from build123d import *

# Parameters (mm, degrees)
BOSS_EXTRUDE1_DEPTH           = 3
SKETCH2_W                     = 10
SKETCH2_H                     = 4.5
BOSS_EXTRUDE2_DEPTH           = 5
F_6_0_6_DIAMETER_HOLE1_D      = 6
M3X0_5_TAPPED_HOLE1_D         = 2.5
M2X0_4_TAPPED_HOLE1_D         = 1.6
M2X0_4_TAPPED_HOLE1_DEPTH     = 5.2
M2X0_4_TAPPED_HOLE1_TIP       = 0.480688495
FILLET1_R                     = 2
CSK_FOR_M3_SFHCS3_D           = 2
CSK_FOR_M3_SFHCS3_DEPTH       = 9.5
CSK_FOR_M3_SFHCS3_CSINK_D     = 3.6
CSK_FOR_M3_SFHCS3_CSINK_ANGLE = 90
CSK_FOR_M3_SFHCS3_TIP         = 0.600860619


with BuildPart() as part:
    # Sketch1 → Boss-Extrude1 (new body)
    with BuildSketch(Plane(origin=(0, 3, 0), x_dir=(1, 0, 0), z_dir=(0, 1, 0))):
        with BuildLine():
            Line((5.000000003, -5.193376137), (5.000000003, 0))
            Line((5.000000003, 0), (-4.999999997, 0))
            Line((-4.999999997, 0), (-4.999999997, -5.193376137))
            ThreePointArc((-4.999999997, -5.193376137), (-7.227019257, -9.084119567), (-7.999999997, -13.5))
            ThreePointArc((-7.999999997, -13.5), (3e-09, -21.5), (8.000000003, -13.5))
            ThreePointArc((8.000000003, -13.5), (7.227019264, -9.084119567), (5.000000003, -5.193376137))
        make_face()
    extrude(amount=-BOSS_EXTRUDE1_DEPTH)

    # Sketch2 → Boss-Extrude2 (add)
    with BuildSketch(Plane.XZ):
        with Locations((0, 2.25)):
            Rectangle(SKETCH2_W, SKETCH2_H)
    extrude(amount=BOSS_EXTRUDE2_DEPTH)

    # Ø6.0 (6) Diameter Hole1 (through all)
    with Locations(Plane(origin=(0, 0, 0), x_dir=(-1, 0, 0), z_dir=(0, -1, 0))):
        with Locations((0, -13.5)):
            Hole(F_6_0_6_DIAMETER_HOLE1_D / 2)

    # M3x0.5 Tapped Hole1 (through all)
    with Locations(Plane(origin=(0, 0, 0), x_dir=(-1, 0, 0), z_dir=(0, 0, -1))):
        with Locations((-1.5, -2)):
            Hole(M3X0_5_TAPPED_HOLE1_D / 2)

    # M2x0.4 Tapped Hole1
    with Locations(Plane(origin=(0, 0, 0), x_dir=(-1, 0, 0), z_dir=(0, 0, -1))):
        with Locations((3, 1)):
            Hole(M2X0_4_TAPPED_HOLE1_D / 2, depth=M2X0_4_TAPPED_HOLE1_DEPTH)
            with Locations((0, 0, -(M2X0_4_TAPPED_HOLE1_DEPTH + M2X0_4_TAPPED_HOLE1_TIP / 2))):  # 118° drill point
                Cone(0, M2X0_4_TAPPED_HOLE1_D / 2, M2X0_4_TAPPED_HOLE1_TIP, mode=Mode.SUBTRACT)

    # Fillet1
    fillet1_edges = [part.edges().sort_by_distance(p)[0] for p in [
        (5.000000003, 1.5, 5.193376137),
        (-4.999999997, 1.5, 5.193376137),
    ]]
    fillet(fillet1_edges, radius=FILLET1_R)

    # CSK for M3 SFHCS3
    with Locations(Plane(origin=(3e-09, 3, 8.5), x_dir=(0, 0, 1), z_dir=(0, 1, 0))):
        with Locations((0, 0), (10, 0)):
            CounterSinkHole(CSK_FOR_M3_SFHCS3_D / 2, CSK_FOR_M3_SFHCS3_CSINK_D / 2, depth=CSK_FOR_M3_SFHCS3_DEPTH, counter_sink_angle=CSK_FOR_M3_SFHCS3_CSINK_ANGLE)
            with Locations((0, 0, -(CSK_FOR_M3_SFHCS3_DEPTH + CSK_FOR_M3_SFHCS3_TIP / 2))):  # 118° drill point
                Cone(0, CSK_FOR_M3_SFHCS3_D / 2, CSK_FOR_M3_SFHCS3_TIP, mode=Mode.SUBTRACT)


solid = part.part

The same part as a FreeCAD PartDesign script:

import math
import FreeCAD as App
import Part
import Sketcher
from FreeCAD import Vector


def edges_at(feature, points):
    """Names of the edges that pass closest to the given points."""
    edges = feature.Shape.Edges
    near = lambda p: min(range(len(edges)), key=lambda i: edges[i].distToShape(Part.Vertex(*p))[0])
    return sorted({f"Edge{near(p) + 1}" for p in points})

doc = App.newDocument("Part")
params = doc.addObject("Spreadsheet::Sheet", "Params")
for row, (alias, value) in enumerate([
    ("sketch1_radius", "13 mm"),
    ("sketch1_radius2", "8 mm"),
    ("pad1_length", "3 mm"),
    ("sketch2_width", "10 mm"),
    ("sketch2_height", "4.5 mm"),
    ("pad2_length", "5 mm"),
    ("sketch3_diameter", "6 mm"),
    ("hole_diameter", "6 mm"),
    ("sketch4_diameter", "2.5 mm"),
    ("hole2_diameter", "2.5 mm"),
    ("sketch5_diameter", "1.6 mm"),
    ("hole3_diameter", "1.6 mm"),
    ("hole3_depth", "5.2 mm"),
    ("fillet_radius", "2 mm"),
    ("sketch6_diameter", "2 mm"),
    ("hole4_diameter", "2 mm"),
    ("hole4_depth", "9.5 mm"),
    ("hole4_csink_diameter", "3.6 mm"),
], start=1):
    params.set(f"A{row}", alias)
    params.set(f"B{row}", "=" + value)
    params.setAlias(f"B{row}", alias)

body = doc.addObject("PartDesign::Body", "Body")

# Sketch on XZ plane
sketch1 = doc.addObject("Sketcher::SketchObject", "Sketch")
body.addObject(sketch1)
sketch1.AttachmentSupport = (doc.XZ_Plane, [""])
sketch1.MapMode = "FlatFace"
sketch1.AttachmentOffset = App.Placement(Vector(0, 0, -3), App.Rotation())
sketch1.addGeometry([
    Part.LineSegment(Vector(5, 5, 0), Vector(5, 0, 0)),  # 0
    Part.LineSegment(Vector(5, 0, 0), Vector(-5, 0, 0)),  # 1
    Part.LineSegment(Vector(-5, 0, 0), Vector(-5, 5, 0)),  # 2
    Part.ArcOfCircle(Part.Circle(Vector(5, 14, 0), Vector(0, 0, 1), 13), math.radians(-180), math.radians(-140)),  # 3
    Part.ArcOfCircle(Part.Circle(Vector(0, 14, 0), Vector(0, 0, 1), 8), math.radians(0), math.radians(180)),  # 4
    Part.ArcOfCircle(Part.Circle(Vector(-5, 13, 0), Vector(0, 0, 1), 13), math.radians(-40), math.radians(0)),  # 5
], False)
sketch1.addConstraint([
    Sketcher.Constraint("Coincident", 0, 2, 1, 1),
    Sketcher.Constraint("Coincident", 1, 2, 2, 1),
    Sketcher.Constraint("Coincident", 2, 2, 3, 2),
    Sketcher.Constraint("Tangent", 3, 1, 4, 2),
    Sketcher.Constraint("Tangent", 4, 1, 5, 2),
    Sketcher.Constraint("Coincident", 5, 1, 0, 1),
    Sketcher.Constraint("Vertical", 0),
    Sketcher.Constraint("Horizontal", 1),
    Sketcher.Constraint("Vertical", 2),
    Sketcher.Constraint("Equal", 3, 5),
    Sketcher.Constraint("Symmetric", 0, 2, 1, 2, -1, 1),
    Sketcher.Constraint("Symmetric", 3, 3, 5, 3, -2),
    Sketcher.Constraint("Horizontal", 3, 3, 4, 3),
    Sketcher.Constraint("Vertical", 3, 3, 0, 2),
    Sketcher.Constraint("Radius", 3, 13.0),
    Sketcher.Constraint("Radius", 4, 8.0),
    Sketcher.Constraint("DistanceY", -1, 1, 3, 3, 13.5),
])
sketch1.setExpression("Constraints[14]", "Params.sketch1_radius")
sketch1.setExpression("Constraints[15]", "Params.sketch1_radius2")
pad1 = doc.addObject("PartDesign::Pad", "Pad")
body.addObject(pad1)
pad1.Profile = sketch1
pad1.setExpression("Length", "Params.pad1_length")

# Sketch on XZ plane
sketch2 = doc.addObject("Sketcher::SketchObject", "Sketch001")
body.addObject(sketch2)
sketch2.AttachmentSupport = (doc.XZ_Plane, [""])
sketch2.MapMode = "FlatFace"
sketch2.addGeometry([
    Part.LineSegment(Vector(-5, 4.5, 0), Vector(-5, 0, 0)),
    Part.LineSegment(Vector(-5, 0, 0), Vector(5, 0, 0)),
    Part.LineSegment(Vector(5, 0, 0), Vector(5, 4.5, 0)),
    Part.LineSegment(Vector(5, 4.5, 0), Vector(-5, 4.5, 0)),
], False)
sketch2.addConstraint([
    Sketcher.Constraint("Coincident", 0, 2, 1, 1),
    Sketcher.Constraint("Coincident", 1, 2, 2, 1),
    Sketcher.Constraint("Coincident", 2, 2, 3, 1),
    Sketcher.Constraint("Coincident", 3, 2, 0, 1),
    Sketcher.Constraint("Vertical", 0),
    Sketcher.Constraint("Horizontal", 1),
    Sketcher.Constraint("Vertical", 2),
    Sketcher.Constraint("Horizontal", 3),
    Sketcher.Constraint("Symmetric", 0, 2, 1, 2, -1, 1),
    Sketcher.Constraint("DistanceX", 1, 1, 1, 2, 10.0),
    Sketcher.Constraint("DistanceY", 0, 2, 0, 1, 4.5),
])
sketch2.setExpression("Constraints[9]", "Params.sketch2_width")
sketch2.setExpression("Constraints[10]", "Params.sketch2_height")
pad2 = doc.addObject("PartDesign::Pad", "Pad001")
body.addObject(pad2)
pad2.Profile = sketch2
pad2.setExpression("Length", "Params.pad2_length")

# Sketch on XZ plane
sketch3 = doc.addObject("Sketcher::SketchObject", "Sketch002")
body.addObject(sketch3)
sketch3.AttachmentSupport = (doc.XZ_Plane, [""])
sketch3.MapMode = "FlatFace"
sketch3.addGeometry(Part.Circle(Vector(0, 13.5, 0), Vector(0, 0, 1), 3), False)
sketch3.addConstraint([
    Sketcher.Constraint("PointOnObject", 0, 3, -2),
    Sketcher.Constraint("Diameter", 0, 6.0),
    Sketcher.Constraint("DistanceY", -1, 1, 0, 3, 13.5),
])
sketch3.setExpression("Constraints[1]", "Params.sketch3_diameter")
doc.recompute()
hole = doc.addObject("PartDesign::Hole", "Hole")
body.addObject(hole)
hole.Profile = sketch3
hole.ThreadType = "None"
hole.setExpression("Diameter", "Params.hole_diameter")
hole.DepthType = "ThroughAll"

# Sketch on XY plane
sketch4 = doc.addObject("Sketcher::SketchObject", "Sketch003")
body.addObject(sketch4)
sketch4.AttachmentSupport = (doc.XY_Plane, [""])
sketch4.MapMode = "FlatFace"
sketch4.addGeometry(Part.Circle(Vector(1.5, -2, 0), Vector(0, 0, 1), 1.2), False)
sketch4.addConstraint([
    Sketcher.Constraint("Diameter", 0, 2.5),
    Sketcher.Constraint("DistanceY", 0, 3, -1, 1, 2.0),
    Sketcher.Constraint("DistanceX", -1, 1, 0, 3, 1.5),
])
sketch4.setExpression("Constraints[0]", "Params.sketch4_diameter")
doc.recompute()
hole2 = doc.addObject("PartDesign::Hole", "Hole001")
body.addObject(hole2)
hole2.Profile = sketch4
hole2.ThreadType = "None"
hole2.setExpression("Diameter", "Params.hole2_diameter")
hole2.DepthType = "ThroughAll"
hole2.Reversed = True

# Sketch on XY plane
sketch5 = doc.addObject("Sketcher::SketchObject", "Sketch004")
body.addObject(sketch5)
sketch5.AttachmentSupport = (doc.XY_Plane, [""])
sketch5.MapMode = "FlatFace"
sketch5.addGeometry(Part.Circle(Vector(-3, 1, 0), Vector(0, 0, 1), 0.8), False)
sketch5.addConstraint([
    Sketcher.Constraint("Diameter", 0, 1.6),
    Sketcher.Constraint("DistanceX", 0, 3, -1, 1, 3.0),
    Sketcher.Constraint("DistanceY", -1, 1, 0, 3, 1.0),
])
sketch5.setExpression("Constraints[0]", "Params.sketch5_diameter")
doc.recompute()
hole3 = doc.addObject("PartDesign::Hole", "Hole002")
body.addObject(hole3)
hole3.Profile = sketch5
hole3.ThreadType = "None"
hole3.setExpression("Diameter", "Params.hole3_diameter")
hole3.DepthType = "Dimension"
hole3.setExpression("Depth", "Params.hole3_depth")
hole3.DrillPoint = "Angled"
hole3.DrillPointAngle = 118
hole3.Reversed = True
doc.recompute()

fillet = doc.addObject("PartDesign::Fillet", "Fillet")
body.addObject(fillet)
fillet.Base = (hole3, edges_at(hole3, [(5, 1.5, 5.193), (-5, 1.5, 5.193)]))
fillet.setExpression("Radius", "Params.fillet_radius")

# Sketch on XZ plane
sketch6 = doc.addObject("Sketcher::SketchObject", "Sketch005")
body.addObject(sketch6)
sketch6.AttachmentSupport = (doc.XZ_Plane, [""])
sketch6.MapMode = "FlatFace"
sketch6.AttachmentOffset = App.Placement(Vector(0, 0, -3), App.Rotation())
sketch6.addGeometry([
    Part.Circle(Vector(0, 8.5, 0), Vector(0, 0, 1), 1),
    Part.Circle(Vector(0, 18.5, 0), Vector(0, 0, 1), 1),
], False)
sketch6.addConstraint([
    Sketcher.Constraint("Equal", 0, 1),
    Sketcher.Constraint("PointOnObject", 0, 3, -2),
    Sketcher.Constraint("PointOnObject", 1, 3, -2),
    Sketcher.Constraint("Diameter", 0, 2.0),
    Sketcher.Constraint("DistanceY", 0, 3, 1, 3, 10.0),
    Sketcher.Constraint("DistanceY", -1, 1, 0, 3, 8.5),
])
sketch6.setExpression("Constraints[3]", "Params.sketch6_diameter")
doc.recompute()
hole4 = doc.addObject("PartDesign::Hole", "Hole003")
body.addObject(hole4)
hole4.Profile = sketch6
hole4.ThreadType = "None"
hole4.setExpression("Diameter", "Params.hole4_diameter")
hole4.DepthType = "Dimension"
hole4.setExpression("Depth", "Params.hole4_depth")
hole4.DrillPoint = "Angled"
hole4.DrillPointAngle = 118
hole4.HoleCutType = "Countersink"
hole4.setExpression("HoleCutDiameter", "Params.hole4_csink_diameter")
hole4.HoleCutCountersinkAngle = 90
hole4.Reversed = True

doc.recompute()
